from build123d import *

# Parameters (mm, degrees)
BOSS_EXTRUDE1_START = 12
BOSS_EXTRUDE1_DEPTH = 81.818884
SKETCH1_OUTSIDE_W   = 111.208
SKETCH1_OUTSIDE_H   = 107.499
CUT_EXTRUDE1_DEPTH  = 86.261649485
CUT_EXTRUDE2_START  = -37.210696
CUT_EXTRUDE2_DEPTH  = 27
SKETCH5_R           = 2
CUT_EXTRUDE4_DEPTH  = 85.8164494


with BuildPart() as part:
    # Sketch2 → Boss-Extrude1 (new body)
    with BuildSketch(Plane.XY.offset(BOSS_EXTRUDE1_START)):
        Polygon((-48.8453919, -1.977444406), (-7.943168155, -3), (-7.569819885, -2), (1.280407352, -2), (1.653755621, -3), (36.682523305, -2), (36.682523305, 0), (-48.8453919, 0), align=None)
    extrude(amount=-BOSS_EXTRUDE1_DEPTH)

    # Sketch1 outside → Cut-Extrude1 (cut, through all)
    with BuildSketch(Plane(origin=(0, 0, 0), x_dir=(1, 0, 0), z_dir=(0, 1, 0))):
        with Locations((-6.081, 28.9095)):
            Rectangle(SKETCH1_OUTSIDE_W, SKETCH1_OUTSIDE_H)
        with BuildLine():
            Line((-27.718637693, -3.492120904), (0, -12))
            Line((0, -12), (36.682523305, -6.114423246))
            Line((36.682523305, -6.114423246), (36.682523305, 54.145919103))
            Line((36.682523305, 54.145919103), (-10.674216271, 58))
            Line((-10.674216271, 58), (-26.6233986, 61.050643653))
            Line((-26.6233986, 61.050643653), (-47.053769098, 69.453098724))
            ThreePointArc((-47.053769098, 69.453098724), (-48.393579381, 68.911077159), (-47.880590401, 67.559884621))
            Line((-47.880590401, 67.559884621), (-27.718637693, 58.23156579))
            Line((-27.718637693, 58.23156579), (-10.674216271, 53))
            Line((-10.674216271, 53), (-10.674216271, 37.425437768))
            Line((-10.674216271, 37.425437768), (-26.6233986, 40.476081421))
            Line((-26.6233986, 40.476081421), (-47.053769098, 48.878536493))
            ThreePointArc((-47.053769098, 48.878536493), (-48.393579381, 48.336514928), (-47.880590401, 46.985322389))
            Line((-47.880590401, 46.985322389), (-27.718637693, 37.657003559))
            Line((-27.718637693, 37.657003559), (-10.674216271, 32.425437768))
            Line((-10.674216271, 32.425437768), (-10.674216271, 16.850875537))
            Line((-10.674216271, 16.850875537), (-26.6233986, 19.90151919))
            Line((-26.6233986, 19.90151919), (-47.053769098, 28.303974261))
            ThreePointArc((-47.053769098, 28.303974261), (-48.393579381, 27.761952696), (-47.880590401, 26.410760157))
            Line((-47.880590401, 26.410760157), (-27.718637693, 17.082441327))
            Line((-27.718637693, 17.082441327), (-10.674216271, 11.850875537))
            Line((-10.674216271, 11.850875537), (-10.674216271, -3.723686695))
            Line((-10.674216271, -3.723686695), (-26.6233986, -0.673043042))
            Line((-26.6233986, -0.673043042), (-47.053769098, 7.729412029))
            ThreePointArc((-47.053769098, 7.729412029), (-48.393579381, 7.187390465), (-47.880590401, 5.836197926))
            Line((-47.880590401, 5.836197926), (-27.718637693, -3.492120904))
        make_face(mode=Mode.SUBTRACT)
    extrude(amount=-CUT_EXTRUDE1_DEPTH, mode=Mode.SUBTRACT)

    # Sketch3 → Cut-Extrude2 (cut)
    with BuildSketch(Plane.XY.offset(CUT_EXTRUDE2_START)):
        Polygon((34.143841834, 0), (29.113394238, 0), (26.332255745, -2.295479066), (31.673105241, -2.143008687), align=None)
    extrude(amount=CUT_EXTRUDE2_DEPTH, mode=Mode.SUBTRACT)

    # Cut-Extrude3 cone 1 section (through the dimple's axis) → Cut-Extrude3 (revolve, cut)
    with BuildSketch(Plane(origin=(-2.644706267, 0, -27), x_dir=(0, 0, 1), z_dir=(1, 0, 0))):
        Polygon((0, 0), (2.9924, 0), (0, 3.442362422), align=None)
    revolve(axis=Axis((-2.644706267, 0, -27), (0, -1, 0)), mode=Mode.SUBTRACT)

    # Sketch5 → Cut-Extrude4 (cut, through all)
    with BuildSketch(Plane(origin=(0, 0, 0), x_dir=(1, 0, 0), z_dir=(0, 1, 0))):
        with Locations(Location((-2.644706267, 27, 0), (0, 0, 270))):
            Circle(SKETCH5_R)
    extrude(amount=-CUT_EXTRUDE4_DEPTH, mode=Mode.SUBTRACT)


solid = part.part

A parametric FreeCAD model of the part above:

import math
import FreeCAD as App
import Part
import Sketcher

V = App.Vector
Q = App.Units.Quantity

doc = App.newDocument("Part")
params = doc.addObject("Spreadsheet::Sheet", "Params")
for row, (alias, value) in enumerate([
    ("sketch1_height", "2 mm"),
    ("pad1_length", "81.818884 mm"),
    ("pocket2_length", "27 mm"),
    ("groove_angle", "360 deg"),
    ("sketch5_diameter", "4 mm"),
], start=1):
    params.set(f"A{row}", alias)
    params.set(f"B{row}", "=" + value)
    params.setAlias(f"B{row}", alias)

body = doc.addObject("PartDesign::Body", "Body")

# Sketch on XY plane
sketch1 = body.newObject("Sketcher::SketchObject", "Sketch")
sketch1.AttachmentSupport = (doc.getObject("XY_Plane"), [""])
sketch1.MapMode = "FlatFace"
sketch1.AttachmentOffset = App.Placement(V(0, 0, 12), App.Rotation())
sketch1.addGeometry([
    Part.LineSegment(V(-48.845392, -1.977444, 0), V(-7.943168, -3, 0)),  # 0
    Part.LineSegment(V(-7.943168, -3, 0), V(-7.56982, -2, 0)),  # 1
    Part.LineSegment(V(-7.56982, -2, 0), V(1.280407, -2, 0)),  # 2
    Part.LineSegment(V(1.280407, -2, 0), V(1.653756, -3, 0)),  # 3
    Part.LineSegment(V(1.653756, -3, 0), V(36.682523, -2, 0)),  # 4
    Part.LineSegment(V(36.682523, -2, 0), V(36.682523, 0, 0)),  # 5
    Part.LineSegment(V(36.682523, 0, 0), V(-48.845392, 0, 0)),  # 6
    Part.LineSegment(V(-48.845392, 0, 0), V(-48.845392, -1.977444, 0)),  # 7
], False)
sketch1.addConstraint([
    Sketcher.Constraint("Coincident", 0, 2, 1, 1),
    Sketcher.Constraint("Coincident", 1, 2, 2, 1),
    Sketcher.Constraint("Coincident", 2, 2, 3, 1),
    Sketcher.Constraint("Coincident", 3, 2, 4, 1),
    Sketcher.Constraint("Coincident", 4, 2, 5, 1),
    Sketcher.Constraint("Coincident", 5, 2, 6, 1),
    Sketcher.Constraint("Coincident", 6, 2, 7, 1),
    Sketcher.Constraint("Coincident", 7, 2, 0, 1),
    Sketcher.Constraint("Horizontal", 2),
    Sketcher.Constraint("Vertical", 5),
    Sketcher.Constraint("Horizontal", 6),
    Sketcher.Constraint("Vertical", 7),
    Sketcher.Constraint("PointOnObject", 5, 2, -1),
    Sketcher.Constraint("Horizontal", 0, 2, 3, 2),
    Sketcher.Constraint("Horizontal", 2, 2, 4, 2),
    Sketcher.Constraint("Equal", 1, 3),
    Sketcher.Constraint("DistanceY", 5, 1, 5, 2, 2.0),
    Sketcher.Constraint("DistanceY", 0, 2, -1, 1, 3.0),
    Sketcher.Constraint("DistanceX", 6, 2, 2, 2, 50.125799),
    Sketcher.Constraint("Distance", 1, 1.067422),
    Sketcher.Constraint("Distance", 4, 35.043039),
    Sketcher.Constraint("DistanceX", 2, 1, 2, 2, 8.850227),
    Sketcher.Constraint("DistanceY", 7, 2, 7, 1, 1.977444),
    Sketcher.Constraint("DistanceX", 0, 2, -1, 1, 7.943168),
])
sketch1.setExpression("Constraints[16]", "Params.sketch1_height")
pad1 = body.newObject("PartDesign::Pad", "Pad")
pad1.Profile = sketch1
pad1.setExpression("Length", "Params.pad1_length")
pad1.Reversed = True

# Sketch on XZ plane
sketch2 = body.newObject("Sketcher::SketchObject", "Sketch001")
sketch2.AttachmentSupport = (doc.getObject("XZ_Plane"), [""])
sketch2.MapMode = "FlatFace"
sketch2.addGeometry([
    Part.LineSegment(V(-61.685, -82.659, 0), V(-61.685, 24.84, 0)),  # 0
    Part.LineSegment(V(-61.685, 24.84, 0), V(49.523, 24.84, 0)),  # 1
    Part.LineSegment(V(49.523, 24.84, 0), V(49.523, -82.659, 0)),  # 2
    Part.LineSegment(V(49.523, -82.659, 0), V(-61.685, -82.659, 0)),  # 3
    Part.LineSegment(V(0, 12, 0), V(-27.718638, 3.492121, 0)),  # 4
    Part.LineSegment(V(-27.718638, 3.492121, 0), V(-47.88059, -5.836198, 0)),  # 5
    Part.ArcOfCircle(Part.Circle(V(-47.446752, -6.773884, 0), V(0, 0, 1), 1.033184), math.radians(114.828537), math.radians(292.356031)),  # 6
    Part.LineSegment(V(-47.053769, -7.729412, 0), V(-26.623399, 0.673043, 0)),  # 7
    Part.LineSegment(V(-26.623399, 0.673043, 0), V(-10.674216, 3.723687, 0)),  # 8
    Part.LineSegment(V(-10.674216, 3.723687, 0), V(-10.674216, -11.850876, 0)),  # 9
    Part.LineSegment(V(-10.674216, -11.850876, 0), V(-27.718638, -17.082441, 0)),  # 10
    Part.LineSegment(V(-27.718638, -17.082441, 0), V(-47.88059, -26.41076, 0)),  # 11
    Part.ArcOfCircle(Part.Circle(V(-47.446752, -27.348446, 0), V(0, 0, 1), 1.033184), math.radians(114.828537), math.radians(292.356031)),  # 12
    Part.LineSegment(V(-47.053769, -28.303974, 0), V(-26.623399, -19.901519, 0)),  # 13
    Part.LineSegment(V(-26.623399, -19.901519, 0), V(-10.674216, -16.850876, 0)),  # 14
    Part.LineSegment(V(-10.674216, -16.850876, 0), V(-10.674216, -32.425438, 0)),  # 15
    Part.LineSegment(V(-10.674216, -32.425438, 0), V(-27.718638, -37.657004, 0)),  # 16
    Part.LineSegment(V(-27.718638, -37.657004, 0), V(-47.88059, -46.985322, 0)),  # 17
    Part.ArcOfCircle(Part.Circle(V(-47.446752, -47.923008, 0), V(0, 0, 1), 1.033184), math.radians(114.828537), math.radians(292.356031)),  # 18
    Part.LineSegment(V(-47.053769, -48.878536, 0), V(-26.623399, -40.476081, 0)),  # 19
    Part.LineSegment(V(-26.623399, -40.476081, 0), V(-10.674216, -37.425438, 0)),  # 20
    Part.LineSegment(V(-10.674216, -37.425438, 0), V(-10.674216, -53, 0)),  # 21
    Part.LineSegment(V(-10.674216, -53, 0), V(-27.718638, -58.231566, 0)),  # 22
    Part.LineSegment(V(-27.718638, -58.231566, 0), V(-47.88059, -67.559885, 0)),  # 23
    Part.ArcOfCircle(Part.Circle(V(-47.446752, -68.49757, 0), V(0, 0, 1), 1.033184), math.radians(114.828537), math.radians(292.356031)),  # 24
    Part.LineSegment(V(-47.053769, -69.453099, 0), V(-26.623399, -61.050644, 0)),  # 25
    Part.LineSegment(V(-26.623399, -61.050644, 0), V(-10.674216, -58, 0)),  # 26
    Part.LineSegment(V(-10.674216, -58, 0), V(36.682523, -54.145919, 0)),  # 27
    Part.LineSegment(V(36.682523, -54.145919, 0), V(36.682523, 6.114423, 0)),  # 28
    Part.LineSegment(V(36.682523, 6.114423, 0), V(0, 12, 0)),  # 29
], False)
sketch2.addConstraint([
    Sketcher.Constraint("Coincident", 0, 2, 1, 1),
    Sketcher.Constraint("Coincident", 1, 2, 2, 1),
    Sketcher.Constraint("Coincident", 2, 2, 3, 1),
    Sketcher.Constraint("Coincident", 3, 2, 0, 1),
    Sketcher.Constraint("Coincident", 4, 2, 5, 1),
    Sketcher.Constraint("Tangent", 5, 2, 6, 1),
    Sketcher.Constraint("Tangent", 6, 2, 7, 1),
    Sketcher.Constraint("Coincident", 7, 2, 8, 1),
    Sketcher.Constraint("Coincident", 8, 2, 9, 1),
    Sketcher.Constraint("Coincident", 9, 2, 10, 1),
    Sketcher.Constraint("Coincident", 10, 2, 11, 1),
    Sketcher.Constraint("Tangent", 11, 2, 12, 1),
    Sketcher.Constraint("Tangent", 12, 2, 13, 1),
    Sketcher.Constraint("Coincident", 13, 2, 14, 1),
    Sketcher.Constraint("Coincident", 14, 2, 15, 1),
    Sketcher.Constraint("Coincident", 15, 2, 16, 1),
    Sketcher.Constraint("Coincident", 16, 2, 17, 1),
    Sketcher.Constraint("Tangent", 17, 2, 18, 1),
    Sketcher.Constraint("Tangent", 18, 2, 19, 1),
    Sketcher.Constraint("Coincident", 19, 2, 20, 1),
    Sketcher.Constraint("Coincident", 20, 2, 21, 1),
    Sketcher.Constraint("Coincident", 21, 2, 22, 1),
    Sketcher.Constraint("Coincident", 22, 2, 23, 1),
    Sketcher.Constraint("Tangent", 23, 2, 24, 1),
    Sketcher.Constraint("Tangent", 24, 2, 25, 1),
    Sketcher.Constraint("Coincident", 25, 2, 26, 1),
    Sketcher.Constraint("Coincident", 26, 2, 27, 1),
    Sketcher.Constraint("Coincident", 27, 2, 28, 1),
    Sketcher.Constraint("Coincident", 28, 2, 29, 1),
    Sketcher.Constraint("Coincident", 29, 2, 4, 1),
    Sketcher.Constraint("Vertical", 0),
    Sketcher.Constraint("Horizontal", 1),
    Sketcher.Constraint("Vertical", 2),
    Sketcher.Constraint("Horizontal", 3),
    Sketcher.Constraint("Vertical", 9),
    Sketcher.Constraint("Vertical", 15),
    Sketcher.Constraint("Vertical", 21),
    Sketcher.Constraint("Vertical", 28),
    Sketcher.Constraint("Equal", 6, 12),
    Sketcher.Constraint("Equal", 12, 18),
    Sketcher.Constraint("Equal", 18, 24),
    Sketcher.Constraint("PointOnObject", 29, 2, -2),
    Sketcher.Constraint("Parallel", 4, 10),
    Sketcher.Constraint("Parallel", 5, 11),
    Sketcher.Constraint("Parallel", 7, 13),
    Sketcher.Constraint("Parallel", 8, 14),
    Sketcher.Constraint("Parallel", 10, 16),
    Sketcher.Constraint("Parallel", 11, 17),
    Sketcher.Constraint("Parallel", 13, 19),
    Sketcher.Constraint("Parallel", 14, 20),
    Sketcher.Constraint("Parallel", 16, 22),
    Sketcher.Constraint("Parallel", 17, 23),
    Sketcher.Constraint("Parallel", 19, 25),
    Sketcher.Constraint("Parallel", 20, 26),
    Sketcher.Constraint("Vertical", 6, 3, 12, 3),
    Sketcher.Constraint("Vertical", 12, 3, 18, 3),
    Sketcher.Constraint("Vertical", 18, 3, 24, 3),
    Sketcher.Constraint("Vertical", 4, 2, 10, 2),
    Sketcher.Constraint("Vertical", 7, 2, 13, 2),
    Sketcher.Constraint("Vertical", 9, 2, 14, 2),
    Sketcher.Constraint("Vertical", 10, 2, 16, 2),
    Sketcher.Constraint("Vertical", 13, 2, 19, 2),
    Sketcher.Constraint("Vertical", 15, 2, 20, 2),
    Sketcher.Constraint("Vertical", 16, 2, 22, 2),
    Sketcher.Constraint("Vertical", 19, 2, 25, 2),
    Sketcher.Constraint("Vertical", 21, 2, 26, 2),
    Sketcher.Constraint("Equal", 9, 15),
    Sketcher.Constraint("Equal", 15, 21),
    Sketcher.Constraint("DistanceY", 21, 2, -1, 1, 53.0),
    Sketcher.Constraint("DistanceY", 26, 2, -1, 1, 58.0),
    Sketcher.Constraint("DistanceY", -1, 1, 29, 2, 12.0),
    Sketcher.Constraint("DistanceX", 1, 1, 1, 2, 111.208),
    Sketcher.Constraint("DistanceY", 0, 1, 0, 2, 107.499),
    Sketcher.Constraint("DistanceY", -1, 1, 0, 2, 24.84),
    Sketcher.Constraint("DistanceX", 0, 2, -1, 1, 61.685),
    Sketcher.Constraint("Radius", 6, 1.033184),
    Sketcher.Constraint("DistanceX", 7, 2, -1, 1, 26.623399),
    Sketcher.Constraint("DistanceY", 24, 2, -1, 1, 69.453099),
    Sketcher.Constraint("DistanceY", 9, 2, 28, 2, 17.965299),
    Sketcher.Constraint("Distance", 7, 22.090751),
    Sketcher.Constraint("Distance", 27, 47.513311),
    Sketcher.Constraint("DistanceY", 9, 2, 9, 1, 15.574562),
    Sketcher.Constraint("DistanceY", 28, 1, 28, 2, 60.260342),
    Sketcher.Constraint("DistanceX", 6, 3, -1, 1, 47.446752),
    Sketcher.Constraint("DistanceY", -1, 1, 4, 2, 3.492121),
    Sketcher.Constraint("DistanceX", 5, 2, -1, 1, 47.88059),
])
pocket1 = body.newObject("PartDesign::Pocket", "Pocket")
pocket1.Profile = sketch2
pocket1.Type = "ThroughAll"
pocket1.Reversed = True

# Sketch on XY plane
sketch3 = body.newObject("Sketcher::SketchObject", "Sketch002")
sketch3.AttachmentSupport = (doc.getObject("XY_Plane"), [""])
sketch3.MapMode = "FlatFace"
sketch3.AttachmentOffset = App.Placement(V(0, 0, -37.210696), App.Rotation())
sketch3.addGeometry([
    Part.LineSegment(V(34.143842, 0, 0), V(29.113394, 0, 0)),
    Part.LineSegment(V(29.113394, 0, 0), V(26.332256, -2.295479, 0)),
    Part.LineSegment(V(26.332256, -2.295479, 0), V(31.673105, -2.143009, 0)),
    Part.LineSegment(V(31.673105, -2.143009, 0), V(34.143842, 0, 0)),
], False)
sketch3.addConstraint([
    Sketcher.Constraint("Coincident", 0, 2, 1, 1),
    Sketcher.Constraint("Coincident", 1, 2, 2, 1),
    Sketcher.Constraint("Coincident", 2, 2, 3, 1),
    Sketcher.Constraint("Coincident", 3, 2, 0, 1),
    Sketcher.Constraint("Horizontal", 0),
    Sketcher.Constraint("PointOnObject", 0, 2, -1),
    Sketcher.Constraint("Distance", 1, 3.6061),
    Sketcher.Constraint("Distance", 3, 3.270631),
    Sketcher.Constraint("DistanceX", 0, 2, 0, 1, 5.030448),
    Sketcher.Constraint("DistanceY", 1, 2, -1, 1, 2.295479),
    Sketcher.Constraint("DistanceY", 2, 2, -1, 1, 2.143009),
    Sketcher.Constraint("DistanceX", -1, 1, 3, 2, 34.143842),
])
pocket2 = body.newObject("PartDesign::Pocket", "Pocket001")
pocket2.Profile = sketch3
pocket2.setExpression("Length", "Params.pocket2_length")
pocket2.Reversed = True

# Sketch on YZ plane
sketch4 = body.newObject("Sketcher::SketchObject", "Sketch003")
sketch4.AttachmentSupport = (doc.getObject("YZ_Plane"), [""])
sketch4.MapMode = "FlatFace"
sketch4.AttachmentOffset = App.Placement(V(0, 0, -2.644706), App.Rotation())
sketch4.addGeometry([
    Part.LineSegment(V(0, -27, 0), V(0, -24.0076, 0)),
    Part.LineSegment(V(0, -24.0076, 0), V(-3.442362, -27, 0)),
    Part.LineSegment(V(-3.442362, -27, 0), V(0, -27, 0)),
], False)
sketch4.addGeometry(Part.LineSegment(V(0, -27, 0), V(-3.442362, -27, 0)), True)  # axis
sketch4.addConstraint([
    Sketcher.Constraint("Coincident", 0, 2, 1, 1),
    Sketcher.Constraint("Coincident", 1, 2, 2, 1),
    Sketcher.Constraint("Coincident", 2, 2, 0, 1),
    Sketcher.Constraint("Vertical", 0),
    Sketcher.Constraint("Horizontal", 2),
    Sketcher.Constraint("Horizontal", 3),
    Sketcher.Constraint("Coincident", 3, 1, 2, 2),
    Sketcher.Constraint("PointOnObject", 0, 2, -2),
    Sketcher.Constraint("Equal", 2, 3),
    Sketcher.Constraint("Angle", 1, Q("-139 deg")),
    Sketcher.Constraint("DistanceY", 1, 2, -1, 1, 27.0),
    Sketcher.Constraint("DistanceY", 0, 1, 0, 2, 2.9924),
])
groove = body.newObject("PartDesign::Groove", "Groove")
groove.Profile = sketch4
groove.ReferenceAxis = (sketch4, ["Axis0"])
groove.setExpression("Angle", "Params.groove_angle")

# Sketch on XZ plane
sketch5 = body.newObject("Sketcher::SketchObject", "Sketch004")
sketch5.AttachmentSupport = (doc.getObject("XZ_Plane"), [""])
sketch5.MapMode = "FlatFace"
sketch5.addGeometry(Part.Circle(V(-2.644706, -27, 0), V(0, 0, 1), 2), False)
sketch5.addConstraint([
    Sketcher.Constraint("Diameter", 0, 4.0),
    Sketcher.Constraint("DistanceY", 0, 3, -1, 1, 27.0),
    Sketcher.Constraint("DistanceX", 0, 3, -1, 1, 2.644706),
])
sketch5.setExpression("Constraints[0]", "Params.sketch5_diameter")
pocket3 = body.newObject("PartDesign::Pocket", "Pocket002")
pocket3.Profile = sketch5
pocket3.Type = "ThroughAll"
pocket3.Reversed = True

doc.recompute()
